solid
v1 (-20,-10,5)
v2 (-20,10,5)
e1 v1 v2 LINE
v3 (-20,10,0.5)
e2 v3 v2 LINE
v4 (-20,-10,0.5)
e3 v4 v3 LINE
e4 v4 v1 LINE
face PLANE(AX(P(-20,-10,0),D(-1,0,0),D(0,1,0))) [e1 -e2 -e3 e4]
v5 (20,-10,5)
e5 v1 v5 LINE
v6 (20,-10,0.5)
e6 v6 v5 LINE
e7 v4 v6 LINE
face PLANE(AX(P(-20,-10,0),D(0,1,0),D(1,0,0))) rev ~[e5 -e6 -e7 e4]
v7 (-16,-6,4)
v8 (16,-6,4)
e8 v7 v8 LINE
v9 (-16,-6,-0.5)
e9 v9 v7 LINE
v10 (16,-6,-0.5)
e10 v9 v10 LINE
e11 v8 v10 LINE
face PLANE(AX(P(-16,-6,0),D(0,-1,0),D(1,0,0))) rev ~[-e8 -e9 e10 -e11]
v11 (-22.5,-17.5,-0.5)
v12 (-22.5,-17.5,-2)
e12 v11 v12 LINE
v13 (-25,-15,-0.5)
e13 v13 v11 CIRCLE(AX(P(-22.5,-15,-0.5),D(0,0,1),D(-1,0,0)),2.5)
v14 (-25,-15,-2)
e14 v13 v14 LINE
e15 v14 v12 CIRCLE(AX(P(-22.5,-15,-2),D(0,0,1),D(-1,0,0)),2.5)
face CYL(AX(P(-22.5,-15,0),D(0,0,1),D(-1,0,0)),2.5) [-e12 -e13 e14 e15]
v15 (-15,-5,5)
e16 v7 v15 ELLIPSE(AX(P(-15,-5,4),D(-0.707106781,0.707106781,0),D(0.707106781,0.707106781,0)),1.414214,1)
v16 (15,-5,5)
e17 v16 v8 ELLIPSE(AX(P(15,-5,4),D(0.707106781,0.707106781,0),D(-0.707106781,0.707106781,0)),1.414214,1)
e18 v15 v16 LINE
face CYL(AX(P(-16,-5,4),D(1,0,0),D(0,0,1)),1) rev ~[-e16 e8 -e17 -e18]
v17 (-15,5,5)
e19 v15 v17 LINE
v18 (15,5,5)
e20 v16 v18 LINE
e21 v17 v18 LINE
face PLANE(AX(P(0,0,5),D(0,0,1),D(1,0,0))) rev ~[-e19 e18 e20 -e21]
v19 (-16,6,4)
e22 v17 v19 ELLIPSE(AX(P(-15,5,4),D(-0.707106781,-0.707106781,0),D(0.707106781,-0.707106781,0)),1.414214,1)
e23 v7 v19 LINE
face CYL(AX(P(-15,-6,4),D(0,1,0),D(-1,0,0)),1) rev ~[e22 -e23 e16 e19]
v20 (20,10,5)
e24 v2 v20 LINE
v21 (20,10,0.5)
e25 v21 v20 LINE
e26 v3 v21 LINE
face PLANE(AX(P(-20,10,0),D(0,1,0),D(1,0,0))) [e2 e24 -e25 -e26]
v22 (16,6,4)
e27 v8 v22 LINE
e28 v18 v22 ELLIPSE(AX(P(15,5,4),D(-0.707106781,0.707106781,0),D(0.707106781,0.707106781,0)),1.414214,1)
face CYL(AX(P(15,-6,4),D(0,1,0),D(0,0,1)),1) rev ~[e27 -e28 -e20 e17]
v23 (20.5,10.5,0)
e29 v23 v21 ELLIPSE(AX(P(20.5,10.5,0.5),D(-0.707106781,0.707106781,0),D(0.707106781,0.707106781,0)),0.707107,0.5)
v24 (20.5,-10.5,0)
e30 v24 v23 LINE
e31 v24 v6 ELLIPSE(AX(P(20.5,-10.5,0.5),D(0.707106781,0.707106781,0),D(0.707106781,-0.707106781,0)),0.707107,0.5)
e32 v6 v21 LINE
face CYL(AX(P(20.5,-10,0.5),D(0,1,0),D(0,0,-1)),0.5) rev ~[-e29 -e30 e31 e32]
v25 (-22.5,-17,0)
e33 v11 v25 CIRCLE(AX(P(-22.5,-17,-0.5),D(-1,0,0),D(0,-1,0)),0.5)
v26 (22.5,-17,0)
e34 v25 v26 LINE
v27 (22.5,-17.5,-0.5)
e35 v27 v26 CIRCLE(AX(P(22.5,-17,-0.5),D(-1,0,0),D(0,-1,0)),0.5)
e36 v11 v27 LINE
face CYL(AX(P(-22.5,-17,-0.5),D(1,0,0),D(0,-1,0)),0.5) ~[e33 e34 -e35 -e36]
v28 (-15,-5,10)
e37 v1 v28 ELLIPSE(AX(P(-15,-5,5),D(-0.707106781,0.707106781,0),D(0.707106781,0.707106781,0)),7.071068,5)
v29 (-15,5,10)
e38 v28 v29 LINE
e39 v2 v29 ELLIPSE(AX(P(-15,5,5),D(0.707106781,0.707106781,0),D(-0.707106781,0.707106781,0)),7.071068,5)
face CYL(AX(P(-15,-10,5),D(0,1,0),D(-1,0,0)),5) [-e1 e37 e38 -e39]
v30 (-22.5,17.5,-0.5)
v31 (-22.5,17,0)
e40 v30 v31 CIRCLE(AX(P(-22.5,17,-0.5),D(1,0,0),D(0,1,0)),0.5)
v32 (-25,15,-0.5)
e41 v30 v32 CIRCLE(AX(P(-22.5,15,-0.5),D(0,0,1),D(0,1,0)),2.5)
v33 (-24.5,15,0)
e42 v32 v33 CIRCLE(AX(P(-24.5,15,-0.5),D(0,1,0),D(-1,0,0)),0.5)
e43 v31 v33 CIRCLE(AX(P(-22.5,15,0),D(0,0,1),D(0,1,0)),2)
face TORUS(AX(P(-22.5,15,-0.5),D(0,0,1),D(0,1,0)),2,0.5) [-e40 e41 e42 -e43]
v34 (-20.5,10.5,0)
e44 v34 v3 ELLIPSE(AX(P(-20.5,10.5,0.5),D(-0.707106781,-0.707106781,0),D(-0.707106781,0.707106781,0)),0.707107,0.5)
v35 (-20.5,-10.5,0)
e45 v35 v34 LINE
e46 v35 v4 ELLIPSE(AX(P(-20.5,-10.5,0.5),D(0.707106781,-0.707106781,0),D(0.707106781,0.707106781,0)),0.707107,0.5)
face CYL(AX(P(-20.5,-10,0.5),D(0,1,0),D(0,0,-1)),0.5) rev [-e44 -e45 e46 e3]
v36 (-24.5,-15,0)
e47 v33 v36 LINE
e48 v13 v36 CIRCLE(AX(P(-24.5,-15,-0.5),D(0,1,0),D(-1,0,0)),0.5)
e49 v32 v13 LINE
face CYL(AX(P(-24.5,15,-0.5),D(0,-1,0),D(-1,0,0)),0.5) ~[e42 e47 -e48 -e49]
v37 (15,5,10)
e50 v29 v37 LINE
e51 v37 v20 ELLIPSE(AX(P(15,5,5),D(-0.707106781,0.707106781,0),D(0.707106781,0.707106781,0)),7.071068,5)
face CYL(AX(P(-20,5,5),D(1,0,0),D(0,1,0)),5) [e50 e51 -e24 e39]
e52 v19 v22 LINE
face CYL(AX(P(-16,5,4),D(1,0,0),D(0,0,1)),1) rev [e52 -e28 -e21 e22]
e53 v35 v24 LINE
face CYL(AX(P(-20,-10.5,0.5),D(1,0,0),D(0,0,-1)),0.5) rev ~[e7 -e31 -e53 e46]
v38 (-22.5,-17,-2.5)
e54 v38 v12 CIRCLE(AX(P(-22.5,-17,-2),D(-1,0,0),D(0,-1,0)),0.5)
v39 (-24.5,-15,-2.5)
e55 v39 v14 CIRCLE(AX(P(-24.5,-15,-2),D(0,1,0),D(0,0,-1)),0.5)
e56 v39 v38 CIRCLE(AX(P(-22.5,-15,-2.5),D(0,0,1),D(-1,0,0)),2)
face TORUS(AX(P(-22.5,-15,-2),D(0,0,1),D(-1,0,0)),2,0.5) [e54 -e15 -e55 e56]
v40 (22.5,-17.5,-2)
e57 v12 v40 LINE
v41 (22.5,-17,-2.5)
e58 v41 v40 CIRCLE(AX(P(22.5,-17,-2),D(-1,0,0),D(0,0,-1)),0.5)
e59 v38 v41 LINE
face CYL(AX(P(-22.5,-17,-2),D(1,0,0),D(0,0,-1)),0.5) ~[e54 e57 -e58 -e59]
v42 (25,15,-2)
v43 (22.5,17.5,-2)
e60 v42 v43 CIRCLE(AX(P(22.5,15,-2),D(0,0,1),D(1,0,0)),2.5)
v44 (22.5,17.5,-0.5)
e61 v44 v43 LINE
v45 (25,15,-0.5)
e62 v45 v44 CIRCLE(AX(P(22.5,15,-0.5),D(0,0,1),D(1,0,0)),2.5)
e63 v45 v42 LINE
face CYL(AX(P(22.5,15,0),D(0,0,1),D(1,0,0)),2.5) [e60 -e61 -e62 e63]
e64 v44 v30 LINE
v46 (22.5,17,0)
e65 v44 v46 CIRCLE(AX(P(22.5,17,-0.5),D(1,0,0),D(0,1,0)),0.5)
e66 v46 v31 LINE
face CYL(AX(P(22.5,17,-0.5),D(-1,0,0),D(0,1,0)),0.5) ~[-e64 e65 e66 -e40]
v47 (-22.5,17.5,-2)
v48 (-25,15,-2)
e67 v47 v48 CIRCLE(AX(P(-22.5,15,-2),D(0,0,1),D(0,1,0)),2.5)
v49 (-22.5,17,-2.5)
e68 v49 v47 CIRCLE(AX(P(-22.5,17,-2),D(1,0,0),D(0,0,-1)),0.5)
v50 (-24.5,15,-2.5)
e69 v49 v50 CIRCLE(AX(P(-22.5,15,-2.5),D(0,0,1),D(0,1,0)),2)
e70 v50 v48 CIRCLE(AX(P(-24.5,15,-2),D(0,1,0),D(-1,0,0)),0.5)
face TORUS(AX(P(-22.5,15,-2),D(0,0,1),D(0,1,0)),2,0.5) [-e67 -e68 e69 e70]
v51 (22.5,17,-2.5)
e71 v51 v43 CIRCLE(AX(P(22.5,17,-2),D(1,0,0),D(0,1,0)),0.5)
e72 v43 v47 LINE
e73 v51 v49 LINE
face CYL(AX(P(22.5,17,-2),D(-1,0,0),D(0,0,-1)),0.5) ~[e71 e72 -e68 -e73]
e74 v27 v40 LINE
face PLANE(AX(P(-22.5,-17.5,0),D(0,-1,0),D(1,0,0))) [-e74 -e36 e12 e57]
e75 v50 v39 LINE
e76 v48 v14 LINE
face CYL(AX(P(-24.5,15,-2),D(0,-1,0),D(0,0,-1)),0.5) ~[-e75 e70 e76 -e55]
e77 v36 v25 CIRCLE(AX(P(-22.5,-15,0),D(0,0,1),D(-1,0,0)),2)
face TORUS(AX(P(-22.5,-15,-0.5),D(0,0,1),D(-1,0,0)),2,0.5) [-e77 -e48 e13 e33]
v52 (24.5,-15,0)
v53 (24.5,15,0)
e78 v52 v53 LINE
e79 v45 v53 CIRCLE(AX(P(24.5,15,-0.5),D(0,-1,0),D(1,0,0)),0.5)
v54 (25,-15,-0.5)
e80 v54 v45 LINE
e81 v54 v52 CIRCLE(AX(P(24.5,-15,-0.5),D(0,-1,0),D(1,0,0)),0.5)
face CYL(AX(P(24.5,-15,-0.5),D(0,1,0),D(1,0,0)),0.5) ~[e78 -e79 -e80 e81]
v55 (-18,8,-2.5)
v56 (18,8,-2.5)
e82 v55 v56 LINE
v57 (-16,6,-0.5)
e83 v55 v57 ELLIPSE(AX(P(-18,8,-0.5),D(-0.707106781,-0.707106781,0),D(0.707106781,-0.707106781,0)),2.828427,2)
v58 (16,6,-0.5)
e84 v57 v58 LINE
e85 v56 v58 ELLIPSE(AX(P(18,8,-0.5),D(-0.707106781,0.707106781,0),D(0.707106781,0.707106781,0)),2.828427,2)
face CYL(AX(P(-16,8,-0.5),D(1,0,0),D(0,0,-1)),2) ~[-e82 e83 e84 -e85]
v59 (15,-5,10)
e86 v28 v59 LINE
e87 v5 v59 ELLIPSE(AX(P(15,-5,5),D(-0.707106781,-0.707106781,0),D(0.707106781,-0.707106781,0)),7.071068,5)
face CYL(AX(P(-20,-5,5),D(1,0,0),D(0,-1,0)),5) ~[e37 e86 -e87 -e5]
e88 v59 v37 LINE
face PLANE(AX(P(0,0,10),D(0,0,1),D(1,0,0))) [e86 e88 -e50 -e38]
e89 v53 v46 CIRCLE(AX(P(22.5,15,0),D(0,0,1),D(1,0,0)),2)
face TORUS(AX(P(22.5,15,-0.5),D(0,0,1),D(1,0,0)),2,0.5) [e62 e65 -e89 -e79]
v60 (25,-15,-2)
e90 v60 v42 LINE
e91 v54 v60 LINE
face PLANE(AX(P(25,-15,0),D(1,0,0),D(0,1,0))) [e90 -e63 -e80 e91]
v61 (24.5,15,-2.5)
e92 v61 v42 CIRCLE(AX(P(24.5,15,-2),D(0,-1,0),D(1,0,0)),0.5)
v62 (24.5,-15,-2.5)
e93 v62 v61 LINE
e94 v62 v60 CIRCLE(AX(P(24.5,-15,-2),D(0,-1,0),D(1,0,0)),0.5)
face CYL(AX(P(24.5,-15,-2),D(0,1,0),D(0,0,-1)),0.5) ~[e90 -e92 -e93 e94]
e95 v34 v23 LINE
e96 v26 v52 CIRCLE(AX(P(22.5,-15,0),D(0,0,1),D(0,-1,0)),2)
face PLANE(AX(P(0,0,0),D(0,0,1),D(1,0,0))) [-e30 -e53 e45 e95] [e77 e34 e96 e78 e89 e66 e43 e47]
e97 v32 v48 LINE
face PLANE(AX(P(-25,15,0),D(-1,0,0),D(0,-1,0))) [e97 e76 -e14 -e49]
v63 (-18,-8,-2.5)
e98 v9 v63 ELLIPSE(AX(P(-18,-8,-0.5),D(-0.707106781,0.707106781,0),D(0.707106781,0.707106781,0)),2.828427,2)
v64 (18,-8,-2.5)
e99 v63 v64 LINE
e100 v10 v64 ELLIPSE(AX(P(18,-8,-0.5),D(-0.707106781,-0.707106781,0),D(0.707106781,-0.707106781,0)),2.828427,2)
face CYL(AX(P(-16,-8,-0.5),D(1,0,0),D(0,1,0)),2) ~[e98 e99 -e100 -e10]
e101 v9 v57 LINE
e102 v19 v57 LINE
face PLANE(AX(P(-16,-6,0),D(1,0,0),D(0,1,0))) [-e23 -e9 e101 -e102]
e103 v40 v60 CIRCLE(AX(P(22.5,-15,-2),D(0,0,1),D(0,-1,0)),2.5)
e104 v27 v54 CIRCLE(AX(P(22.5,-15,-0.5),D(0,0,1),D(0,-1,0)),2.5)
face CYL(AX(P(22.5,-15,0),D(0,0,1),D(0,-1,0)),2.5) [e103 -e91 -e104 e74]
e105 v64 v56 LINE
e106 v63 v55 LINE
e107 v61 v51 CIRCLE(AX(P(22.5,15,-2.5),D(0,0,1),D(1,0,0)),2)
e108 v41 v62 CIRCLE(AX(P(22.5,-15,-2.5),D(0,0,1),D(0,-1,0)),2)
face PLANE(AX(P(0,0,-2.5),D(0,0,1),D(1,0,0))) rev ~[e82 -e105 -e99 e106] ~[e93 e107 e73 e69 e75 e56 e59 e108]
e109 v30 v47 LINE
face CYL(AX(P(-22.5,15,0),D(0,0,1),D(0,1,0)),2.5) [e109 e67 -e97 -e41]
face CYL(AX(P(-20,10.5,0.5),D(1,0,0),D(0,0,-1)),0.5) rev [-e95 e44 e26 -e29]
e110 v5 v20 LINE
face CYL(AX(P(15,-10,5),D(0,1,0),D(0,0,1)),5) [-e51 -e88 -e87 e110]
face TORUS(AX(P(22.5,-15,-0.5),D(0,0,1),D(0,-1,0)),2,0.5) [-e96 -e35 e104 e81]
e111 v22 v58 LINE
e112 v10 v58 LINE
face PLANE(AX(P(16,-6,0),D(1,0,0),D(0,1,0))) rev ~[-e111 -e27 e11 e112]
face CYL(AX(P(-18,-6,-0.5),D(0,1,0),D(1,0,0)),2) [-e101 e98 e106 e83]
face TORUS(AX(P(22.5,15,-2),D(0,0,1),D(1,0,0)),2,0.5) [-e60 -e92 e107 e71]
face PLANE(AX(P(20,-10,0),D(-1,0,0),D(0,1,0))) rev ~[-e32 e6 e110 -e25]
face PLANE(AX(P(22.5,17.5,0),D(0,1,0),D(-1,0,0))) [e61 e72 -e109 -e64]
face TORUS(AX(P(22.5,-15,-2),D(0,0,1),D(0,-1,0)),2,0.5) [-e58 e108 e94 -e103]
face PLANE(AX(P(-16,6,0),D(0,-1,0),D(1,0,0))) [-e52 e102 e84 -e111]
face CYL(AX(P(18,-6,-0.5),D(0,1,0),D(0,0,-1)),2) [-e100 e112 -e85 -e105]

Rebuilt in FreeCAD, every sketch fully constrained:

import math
import FreeCAD as App
import Part
import Sketcher
from FreeCAD import Vector


def edges_at(feature, points):
    """Names of the edges that pass closest to the given points."""
    edges = feature.Shape.Edges
    near = lambda p: min(range(len(edges)), key=lambda i: edges[i].distToShape(Part.Vertex(*p))[0])
    return sorted({f"Edge{near(p) + 1}" for p in points})


def add_polygon(sketch, points):
    """Adds a closed chain of lines whose ends are joined by coincident constraints."""
    first, n = sketch.GeometryCount, len(points)
    for a, b in zip(points, points[1:] + points[:1]):
        sketch.addGeometry(Part.LineSegment(App.Vector(*a, 0), App.Vector(*b, 0)), False)
    for i in range(n):
        sketch.addConstraint(Sketcher.Constraint("Coincident", first + i, 2, first + (i + 1) % n, 1))

doc = App.newDocument("Part")
body = doc.addObject("PartDesign::Body", "Body")

# Sketch on XY plane
sketch1 = body.newObject("Sketcher::SketchObject", "Sketch")
sketch1.AttachmentSupport = (doc.getObject("XY_Plane"), [""])
sketch1.MapMode = "FlatFace"
add_polygon(sketch1, [(-20, 10), (-20, -10), (20, -10), (20, 10)])  # lines 0-3
sketch1.addConstraint(Sketcher.Constraint("Vertical", 0))
sketch1.addConstraint(Sketcher.Constraint("Horizontal", 1))
sketch1.addConstraint(Sketcher.Constraint("Vertical", 2))
sketch1.addConstraint(Sketcher.Constraint("Horizontal", 3))
sketch1.addConstraint(Sketcher.Constraint("Symmetric", 0, 2, 2, 2, -1, 1))
sketch1.addConstraint(Sketcher.Constraint("DistanceX", 1, 1, 1, 2, 40.0))
sketch1.addConstraint(Sketcher.Constraint("DistanceY", 0, 2, 0, 1, 20.0))
pad1 = body.newObject("PartDesign::Pad", "Pad")
pad1.Profile = sketch1
pad1.Length = 10

# Sketch on XY plane
sketch2 = body.newObject("Sketcher::SketchObject", "Sketch001")
sketch2.AttachmentSupport = (doc.getObject("XY_Plane"), [""])
sketch2.MapMode = "FlatFace"
add_polygon(sketch2, [(-16, 6), (-16, -6), (16, -6), (16, 6)])  # lines 0-3
sketch2.addConstraint(Sketcher.Constraint("Vertical", 0))
sketch2.addConstraint(Sketcher.Constraint("Horizontal", 1))
sketch2.addConstraint(Sketcher.Constraint("Vertical", 2))
sketch2.addConstraint(Sketcher.Constraint("Horizontal", 3))
sketch2.addConstraint(Sketcher.Constraint("Symmetric", 0, 2, 2, 2, -1, 1))
sketch2.addConstraint(Sketcher.Constraint("DistanceX", 1, 1, 1, 2, 32.0))
sketch2.addConstraint(Sketcher.Constraint("DistanceY", 0, 2, 0, 1, 12.0))
pocket1 = body.newObject("PartDesign::Pocket", "Pocket")
pocket1.Profile = sketch2
pocket1.Length = 5
pocket1.Reversed = True
doc.recompute()

fillet = body.newObject("PartDesign::Fillet", "Fillet")
fillet.Base = (pocket1, edges_at(pocket1, [
    (-20, 0, 10),
    (0, -10, 10),
    (20, 0, 10),
    (0, 10, 10),
]))
fillet.Radius = 5

# Sketch on XY plane
sketch3 = body.newObject("Sketcher::SketchObject", "Sketch002")
sketch3.AttachmentSupport = (doc.getObject("XY_Plane"), [""])
sketch3.MapMode = "FlatFace"
sketch3.addGeometry(Part.LineSegment(Vector(22.5, 17.5, 0), Vector(-22.5, 17.5, 0)), False)  # 0
sketch3.addGeometry(Part.ArcOfCircle(Part.Circle(Vector(-22.5, 15, 0), Vector(0, 0, 1), 2.5), math.radians(90), math.radians(180)), False)  # 1
sketch3.addGeometry(Part.LineSegment(Vector(-25, 15, 0), Vector(-25, -15, 0)), False)  # 2
sketch3.addGeometry(Part.ArcOfCircle(Part.Circle(Vector(-22.5, -15, 0), Vector(0, 0, 1), 2.5), math.radians(180), math.radians(270)), False)  # 3
sketch3.addGeometry(Part.LineSegment(Vector(-22.5, -17.5, 0), Vector(22.5, -17.5, 0)), False)  # 4
sketch3.addGeometry(Part.ArcOfCircle(Part.Circle(Vector(22.5, -15, 0), Vector(0, 0, 1), 2.5), math.radians(-90), math.radians(0)), False)  # 5
sketch3.addGeometry(Part.LineSegment(Vector(25, -15, 0), Vector(25, 15, 0)), False)  # 6
sketch3.addGeometry(Part.ArcOfCircle(Part.Circle(Vector(22.5, 15, 0), Vector(0, 0, 1), 2.5), math.radians(0), math.radians(90)), False)  # 7
add_polygon(sketch3, [(16, -6), (-16, -6), (-16, 6), (16, 6)])  # lines 8-11
sketch3.addConstraint(Sketcher.Constraint("Tangent", 0, 2, 1, 1))
sketch3.addConstraint(Sketcher.Constraint("Tangent", 1, 2, 2, 1))
sketch3.addConstraint(Sketcher.Constraint("Tangent", 2, 2, 3, 1))
sketch3.addConstraint(Sketcher.Constraint("Tangent", 3, 2, 4, 1))
sketch3.addConstraint(Sketcher.Constraint("Tangent", 4, 2, 5, 1))
sketch3.addConstraint(Sketcher.Constraint("Tangent", 5, 2, 6, 1))
sketch3.addConstraint(Sketcher.Constraint("Tangent", 6, 2, 7, 1))
sketch3.addConstraint(Sketcher.Constraint("Tangent", 7, 2, 0, 1))
sketch3.addConstraint(Sketcher.Constraint("Horizontal", 0))
sketch3.addConstraint(Sketcher.Constraint("Vertical", 2))
sketch3.addConstraint(Sketcher.Constraint("Horizontal", 4))
sketch3.addConstraint(Sketcher.Constraint("Vertical", 6))
sketch3.addConstraint(Sketcher.Constraint("Horizontal", 8))
sketch3.addConstraint(Sketcher.Constraint("Vertical", 9))
sketch3.addConstraint(Sketcher.Constraint("Horizontal", 10))
sketch3.addConstraint(Sketcher.Constraint("Vertical", 11))
sketch3.addConstraint(Sketcher.Constraint("Equal", 1, 3))
sketch3.addConstraint(Sketcher.Constraint("Equal", 3, 5))
sketch3.addConstraint(Sketcher.Constraint("Equal", 5, 7))
sketch3.addConstraint(Sketcher.Constraint("Symmetric", 1, 3, 5, 3, -1, 1))
sketch3.addConstraint(Sketcher.Constraint("Symmetric", 8, 2, 10, 2, -1, 1))
sketch3.addConstraint(Sketcher.Constraint("Radius", 1, 2.5))
sketch3.addConstraint(Sketcher.Constraint("DistanceX", 0, 2, 0, 1, 45.0))
sketch3.addConstraint(Sketcher.Constraint("DistanceX", 8, 2, 8, 1, 32.0))
sketch3.addConstraint(Sketcher.Constraint("DistanceY", 2, 2, 2, 1, 30.0))
sketch3.addConstraint(Sketcher.Constraint("DistanceY", 9, 1, 9, 2, 12.0))
pad2 = body.newObject("PartDesign::Pad", "Pad001")
pad2.Profile = sketch3
pad2.Length = 2.5
pad2.Reversed = True
doc.recompute()

fillet2 = body.newObject("PartDesign::Fillet", "Fillet001")
fillet2.Base = (pad2, edges_at(pad2, [
    (16, 0, 5),
    (0, 6, 5),
    (-16, 0, 5),
    (0, -6, 5),
]))
fillet2.Radius = 1
doc.recompute()

fillet3 = body.newObject("PartDesign::Fillet", "Fillet002")
fillet3.Base = (fillet2, edges_at(fillet2, [
    (0, -6, -2.5),
    (16, 0, -2.5),
    (0, 6, -2.5),
    (-16, 0, -2.5),
]))
fillet3.Radius = 2
doc.recompute()

fillet4 = body.newObject("PartDesign::Fillet", "Fillet003")
fillet4.Base = (fillet3, edges_at(fillet3, [
    (24.268, 16.768, 0),
    (0, 17.5, 0),
    (-24.268, 16.768, 0),
    (-25, 0, 0),
    (-24.268, -16.768, 0),
    (0, -17.5, 0),
    (24.268, -16.768, 0),
    (25, 0, 0),
    (24.268, 16.768, -2.5),
    (25, 0, -2.5),
    (24.268, -16.768, -2.5),
    (0, -17.5, -2.5),
    (-24.268, -16.768, -2.5),
    (-25, 0, -2.5),
    (-24.268, 16.768, -2.5),
    (0, 17.5, -2.5),
    (0, -10, 0),
    (-20, 0, 0),
    (0, 10, 0),
    (20, 0, 0),
]))
fillet4.Radius = 0.5

doc.recompute()
